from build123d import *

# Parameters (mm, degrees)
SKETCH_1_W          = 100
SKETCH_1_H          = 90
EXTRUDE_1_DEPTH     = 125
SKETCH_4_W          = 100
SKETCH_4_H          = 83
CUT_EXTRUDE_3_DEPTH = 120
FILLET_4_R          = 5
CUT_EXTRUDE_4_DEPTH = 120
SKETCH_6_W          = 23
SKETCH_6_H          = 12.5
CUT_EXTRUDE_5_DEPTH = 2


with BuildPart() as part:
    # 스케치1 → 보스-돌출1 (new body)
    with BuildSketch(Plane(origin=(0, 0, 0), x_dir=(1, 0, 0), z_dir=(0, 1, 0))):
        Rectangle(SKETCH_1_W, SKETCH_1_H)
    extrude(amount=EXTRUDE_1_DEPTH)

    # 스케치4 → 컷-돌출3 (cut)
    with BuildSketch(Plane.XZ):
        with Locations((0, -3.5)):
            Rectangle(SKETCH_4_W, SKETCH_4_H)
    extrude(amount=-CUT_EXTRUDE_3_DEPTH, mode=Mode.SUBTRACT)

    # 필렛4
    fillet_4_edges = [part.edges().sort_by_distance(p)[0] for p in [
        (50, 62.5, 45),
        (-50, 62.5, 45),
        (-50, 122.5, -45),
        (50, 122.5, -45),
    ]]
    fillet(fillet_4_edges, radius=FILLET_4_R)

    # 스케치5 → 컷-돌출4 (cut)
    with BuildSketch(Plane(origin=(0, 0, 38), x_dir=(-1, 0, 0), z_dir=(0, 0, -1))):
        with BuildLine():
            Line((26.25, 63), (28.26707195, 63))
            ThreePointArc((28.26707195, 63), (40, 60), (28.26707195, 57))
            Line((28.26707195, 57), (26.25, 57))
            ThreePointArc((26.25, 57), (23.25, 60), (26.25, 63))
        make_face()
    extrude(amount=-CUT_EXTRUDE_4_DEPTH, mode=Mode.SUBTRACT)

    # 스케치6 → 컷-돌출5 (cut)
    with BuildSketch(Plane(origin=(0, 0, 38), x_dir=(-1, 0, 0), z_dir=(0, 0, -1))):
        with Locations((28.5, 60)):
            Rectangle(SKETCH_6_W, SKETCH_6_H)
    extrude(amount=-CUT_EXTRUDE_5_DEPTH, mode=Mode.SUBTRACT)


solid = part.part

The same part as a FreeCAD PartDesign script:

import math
import FreeCAD as App
import Part
import Sketcher

V = App.Vector


def edges_at(feature, points):
    """Names of the edges that pass closest to the given points."""
    edges = feature.Shape.Edges
    near = lambda p: min(range(len(edges)), key=lambda i: edges[i].distToShape(Part.Vertex(*p))[0])
    return sorted({f"Edge{near(p) + 1}" for p in points})


def add_polygon(sketch, points):
    """Adds a closed chain of lines whose ends are joined by coincident constraints."""
    first, n = sketch.GeometryCount, len(points)
    for a, b in zip(points, points[1:] + points[:1]):
        sketch.addGeometry(Part.LineSegment(App.Vector(*a, 0), App.Vector(*b, 0)), False)
    for i in range(n):
        sketch.addConstraint(Sketcher.Constraint("Coincident", first + i, 2, first + (i + 1) % n, 1))

doc = App.newDocument("Part")
body = doc.addObject("PartDesign::Body", "Body")

# Sketch on XZ plane
sketch1 = body.newObject("Sketcher::SketchObject", "Sketch")
sketch1.AttachmentSupport = (doc.getObject("XZ_Plane"), [""])
sketch1.MapMode = "FlatFace"
add_polygon(sketch1, [(-50, -45), (-50, 45), (50, 45), (50, -45)])  # lines 0-3
sketch1.addConstraint(Sketcher.Constraint("Vertical", 0))
sketch1.addConstraint(Sketcher.Constraint("Horizontal", 1))
sketch1.addConstraint(Sketcher.Constraint("Vertical", 2))
sketch1.addConstraint(Sketcher.Constraint("Horizontal", 3))
sketch1.addConstraint(Sketcher.Constraint("Symmetric", 0, 2, 2, 2, -1, 1))
sketch1.addConstraint(Sketcher.Constraint("DistanceX", 1, 1, 1, 2, 100.0))
sketch1.addConstraint(Sketcher.Constraint("DistanceY", 0, 1, 0, 2, 90.0))
pad1 = body.newObject("PartDesign::Pad", "Pad")
pad1.Profile = sketch1
pad1.Length = 125
pad1.Reversed = True

# Sketch on XZ plane
sketch2 = body.newObject("Sketcher::SketchObject", "Sketch001")
sketch2.AttachmentSupport = (doc.getObject("XZ_Plane"), [""])
sketch2.MapMode = "FlatFace"
add_polygon(sketch2, [(-50, 38), (-50, -45), (50, -45), (50, 38)])  # lines 0-3
sketch2.addConstraint(Sketcher.Constraint("Vertical", 0))
sketch2.addConstraint(Sketcher.Constraint("Horizontal", 1))
sketch2.addConstraint(Sketcher.Constraint("Vertical", 2))
sketch2.addConstraint(Sketcher.Constraint("Horizontal", 3))
sketch2.addConstraint(Sketcher.Constraint("DistanceX", 1, 1, 1, 2, 100.0))
sketch2.addConstraint(Sketcher.Constraint("DistanceY", 0, 2, 0, 1, 83.0))
sketch2.addConstraint(Sketcher.Constraint("DistanceX", 0, 2, -1, 1, 50.0))
sketch2.addConstraint(Sketcher.Constraint("DistanceY", 0, 2, -1, 1, 45.0))
pocket1 = body.newObject("PartDesign::Pocket", "Pocket")
pocket1.Profile = sketch2
pocket1.Length = 120
doc.recompute()

fillet = body.newObject("PartDesign::Fillet", "Fillet")
fillet.Base = (pocket1, edges_at(pocket1, [
    (50, 62.5, 45),
    (-50, 62.5, 45),
    (-50, 122.5, -45),
    (50, 122.5, -45),
]))
fillet.Radius = 5

# Sketch on XY plane
sketch3 = body.newObject("Sketcher::SketchObject", "Sketch002")
sketch3.AttachmentSupport = (doc.getObject("XY_Plane"), [""])
sketch3.MapMode = "FlatFace"
sketch3.AttachmentOffset = App.Placement(V(0, 0, 38), App.Rotation())
sketch3.addGeometry(Part.LineSegment(V(-28.3, 63, 0), V(-26.2, 63, 0)), False)
sketch3.addGeometry(Part.ArcOfCircle(Part.Circle(V(-26.2, 60, 0), V(0, 0, 1), 3), math.radians(-90), math.radians(90)), False)
sketch3.addGeometry(Part.LineSegment(V(-26.2, 57, 0), V(-28.3, 57, 0)), False)
sketch3.addGeometry(Part.ArcOfCircle(Part.Circle(V(-33.8, 60, 0), V(0, 0, 1), 6.2), math.radians(29), math.radians(331)), False)
sketch3.addConstraint(Sketcher.Constraint("Tangent", 0, 2, 1, 2))
sketch3.addConstraint(Sketcher.Constraint("Tangent", 1, 1, 2, 1))
sketch3.addConstraint(Sketcher.Constraint("Coincident", 2, 2, 3, 2))
sketch3.addConstraint(Sketcher.Constraint("Coincident", 3, 1, 0, 1))
sketch3.addConstraint(Sketcher.Constraint("Horizontal", 0))
sketch3.addConstraint(Sketcher.Constraint("Horizontal", 2))
sketch3.addConstraint(Sketcher.Constraint("Horizontal", 1, 3, 3, 3))
sketch3.addConstraint(Sketcher.Constraint("Radius", 1, 3.0))
sketch3.addConstraint(Sketcher.Constraint("Radius", 3, 6.25))
sketch3.addConstraint(Sketcher.Constraint("DistanceY", -1, 1, 1, 3, 60.0))
sketch3.addConstraint(Sketcher.Constraint("DistanceX", 3, 3, 1, 3, 7.5))
sketch3.addConstraint(Sketcher.Constraint("DistanceX", 1, 3, -1, 1, 26.25))
pocket2 = body.newObject("PartDesign::Pocket", "Pocket001")
pocket2.Profile = sketch3
pocket2.Length = 120
pocket2.Reversed = True

# Sketch on XY plane
sketch4 = body.newObject("Sketcher::SketchObject", "Sketch003")
sketch4.AttachmentSupport = (doc.getObject("XY_Plane"), [""])
sketch4.MapMode = "FlatFace"
sketch4.AttachmentOffset = App.Placement(V(0, 0, 38), App.Rotation())
add_polygon(sketch4, [(-17, 66), (-17, 54), (-40, 54), (-40, 66)])  # lines 0-3
sketch4.addConstraint(Sketcher.Constraint("Vertical", 0))
sketch4.addConstraint(Sketcher.Constraint("Horizontal", 1))
sketch4.addConstraint(Sketcher.Constraint("Vertical", 2))
sketch4.addConstraint(Sketcher.Constraint("Horizontal", 3))
sketch4.addConstraint(Sketcher.Constraint("DistanceX", 1, 2, 1, 1, 23.0))
sketch4.addConstraint(Sketcher.Constraint("DistanceY", 0, 2, 0, 1, 12.5))
sketch4.addConstraint(Sketcher.Constraint("DistanceX", 0, 2, -1, 1, 17.0))
sketch4.addConstraint(Sketcher.Constraint("DistanceY", -1, 1, 0, 2, 53.75))
pocket3 = body.newObject("PartDesign::Pocket", "Pocket002")
pocket3.Profile = sketch4
pocket3.Length = 2
pocket3.Reversed = True

doc.recompute()
